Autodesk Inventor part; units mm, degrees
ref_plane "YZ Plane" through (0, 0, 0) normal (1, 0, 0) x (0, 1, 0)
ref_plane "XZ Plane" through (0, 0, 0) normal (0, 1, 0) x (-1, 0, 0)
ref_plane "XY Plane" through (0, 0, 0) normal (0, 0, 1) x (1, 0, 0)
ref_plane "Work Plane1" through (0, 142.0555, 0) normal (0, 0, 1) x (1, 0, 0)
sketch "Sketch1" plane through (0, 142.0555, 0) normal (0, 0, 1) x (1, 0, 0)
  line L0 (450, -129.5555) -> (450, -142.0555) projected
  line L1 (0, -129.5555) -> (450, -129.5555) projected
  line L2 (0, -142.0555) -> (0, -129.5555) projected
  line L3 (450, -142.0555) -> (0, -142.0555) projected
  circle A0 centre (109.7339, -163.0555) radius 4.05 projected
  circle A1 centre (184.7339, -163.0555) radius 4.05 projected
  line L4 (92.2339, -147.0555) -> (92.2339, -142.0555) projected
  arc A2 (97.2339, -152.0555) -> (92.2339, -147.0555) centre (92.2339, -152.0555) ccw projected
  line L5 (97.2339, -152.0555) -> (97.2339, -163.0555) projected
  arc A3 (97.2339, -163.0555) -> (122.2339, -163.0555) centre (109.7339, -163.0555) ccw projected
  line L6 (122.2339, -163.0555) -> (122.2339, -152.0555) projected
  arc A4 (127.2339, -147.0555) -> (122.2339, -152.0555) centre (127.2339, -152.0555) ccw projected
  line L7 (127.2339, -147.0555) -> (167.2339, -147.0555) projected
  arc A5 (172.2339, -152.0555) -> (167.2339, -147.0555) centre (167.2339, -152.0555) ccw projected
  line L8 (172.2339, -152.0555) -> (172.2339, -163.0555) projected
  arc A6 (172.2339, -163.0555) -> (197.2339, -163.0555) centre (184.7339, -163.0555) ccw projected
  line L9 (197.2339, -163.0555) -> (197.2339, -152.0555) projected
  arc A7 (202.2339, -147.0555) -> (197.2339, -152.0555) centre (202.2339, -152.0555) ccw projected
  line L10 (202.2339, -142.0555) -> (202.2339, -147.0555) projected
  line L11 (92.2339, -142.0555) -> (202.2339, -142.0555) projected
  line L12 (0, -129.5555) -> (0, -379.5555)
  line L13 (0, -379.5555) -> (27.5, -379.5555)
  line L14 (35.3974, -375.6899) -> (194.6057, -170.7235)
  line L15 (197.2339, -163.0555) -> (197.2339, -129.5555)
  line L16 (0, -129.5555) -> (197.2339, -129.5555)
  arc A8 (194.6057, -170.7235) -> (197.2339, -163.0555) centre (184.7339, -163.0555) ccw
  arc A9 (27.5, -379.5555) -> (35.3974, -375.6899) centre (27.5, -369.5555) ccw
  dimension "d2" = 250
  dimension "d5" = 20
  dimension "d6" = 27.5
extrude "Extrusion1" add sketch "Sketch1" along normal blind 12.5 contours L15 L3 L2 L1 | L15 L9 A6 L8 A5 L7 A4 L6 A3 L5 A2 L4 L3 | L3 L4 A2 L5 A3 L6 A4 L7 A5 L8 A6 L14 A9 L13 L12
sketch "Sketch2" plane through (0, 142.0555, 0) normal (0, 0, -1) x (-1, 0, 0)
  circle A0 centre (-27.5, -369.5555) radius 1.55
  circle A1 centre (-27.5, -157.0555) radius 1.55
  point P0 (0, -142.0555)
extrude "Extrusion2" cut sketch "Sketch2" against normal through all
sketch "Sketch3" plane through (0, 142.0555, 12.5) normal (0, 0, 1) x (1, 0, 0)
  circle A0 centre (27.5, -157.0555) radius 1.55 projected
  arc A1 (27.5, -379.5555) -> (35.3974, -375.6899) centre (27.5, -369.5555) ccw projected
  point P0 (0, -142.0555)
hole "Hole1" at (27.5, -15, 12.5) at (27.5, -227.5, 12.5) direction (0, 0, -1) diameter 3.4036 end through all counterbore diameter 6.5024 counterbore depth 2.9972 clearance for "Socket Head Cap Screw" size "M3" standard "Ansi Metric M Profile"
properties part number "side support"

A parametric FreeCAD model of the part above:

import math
import FreeCAD as App
import Part
import Sketcher

V = App.Vector

doc = App.newDocument("Part")
body = doc.addObject("PartDesign::Body", "Body")

# Sketch on XY plane
sketch1 = doc.addObject("Sketcher::SketchObject", "Sketch")
body.addObject(sketch1)
sketch1.AttachmentSupport = (doc.XY_Plane, [""])
sketch1.MapMode = "FlatFace"
sketch1.addGeometry(Part.LineSegment(V(197.2, 12.5, 0), V(0, 12.5, 0)), False)
sketch1.addGeometry(Part.LineSegment(V(0, 12.5, 0), V(0, -237.5, 0)), False)
sketch1.addGeometry(Part.LineSegment(V(0, -237.5, 0), V(27.5, -237.5, 0)), False)
sketch1.addGeometry(Part.ArcOfCircle(Part.Circle(V(27.5, -227.5, 0), V(0, 0, 1), 10), math.radians(-90), math.radians(-38)), False)
sketch1.addGeometry(Part.LineSegment(V(35.4, -233.6, 0), V(194.6, -28.7, 0)), False)
sketch1.addGeometry(Part.ArcOfCircle(Part.Circle(V(184.7, -21, 0), V(0, 0, 1), 12.5), math.radians(-38), math.radians(0)), False)
sketch1.addGeometry(Part.LineSegment(V(197.2, -21, 0), V(197.2, 12.5, 0)), False)
sketch1.addGeometry(Part.Circle(V(184.7, -21, 0), V(0, 0, 1), 4), False)
sketch1.addGeometry(Part.Circle(V(109.7, -21, 0), V(0, 0, 1), 4), False)
sketch1.addConstraint(Sketcher.Constraint("Coincident", 0, 2, 1, 1))
sketch1.addConstraint(Sketcher.Constraint("Coincident", 1, 2, 2, 1))
sketch1.addConstraint(Sketcher.Constraint("Tangent", 2, 2, 3, 1))
sketch1.addConstraint(Sketcher.Constraint("Tangent", 3, 2, 4, 1))
sketch1.addConstraint(Sketcher.Constraint("Tangent", 4, 2, 5, 1))
sketch1.addConstraint(Sketcher.Constraint("Tangent", 5, 2, 6, 1))
sketch1.addConstraint(Sketcher.Constraint("Coincident", 6, 2, 0, 1))
sketch1.addConstraint(Sketcher.Constraint("Horizontal", 0))
sketch1.addConstraint(Sketcher.Constraint("Vertical", 1))
sketch1.addConstraint(Sketcher.Constraint("Horizontal", 2))
sketch1.addConstraint(Sketcher.Constraint("Vertical", 6))
sketch1.addConstraint(Sketcher.Constraint("Coincident", 7, 3, 5, 3))
sketch1.addConstraint(Sketcher.Constraint("Equal", 7, 8))
sketch1.addConstraint(Sketcher.Constraint("PointOnObject", 0, 2, -2))
sketch1.addConstraint(Sketcher.Constraint("Horizontal", 7, 3, 8, 3))
sketch1.addConstraint(Sketcher.Constraint("Radius", 3, 10.0))
sketch1.addConstraint(Sketcher.Constraint("DistanceY", 1, 2, 1, 1, 250.0))
sketch1.addConstraint(Sketcher.Constraint("DistanceX", 2, 1, 2, 2, 27.5))
sketch1.addConstraint(Sketcher.Constraint("Diameter", 7, 8.1))
sketch1.addConstraint(Sketcher.Constraint("Radius", 5, 12.5))
sketch1.addConstraint(Sketcher.Constraint("DistanceY", 6, 1, 6, 2, 33.5))
sketch1.addConstraint(Sketcher.Constraint("DistanceY", 5, 3, -1, 1, 21.0))
sketch1.addConstraint(Sketcher.Constraint("DistanceX", 8, 3, 5, 3, 75.0))
sketch1.addConstraint(Sketcher.Constraint("DistanceX", 0, 2, 0, 1, 197.234))
pad1 = doc.addObject("PartDesign::Pad", "Pad")
body.addObject(pad1)
pad1.Profile = sketch1
pad1.Length = 12.5

# Sketch on XY plane
sketch2 = doc.addObject("Sketcher::SketchObject", "Sketch001")
body.addObject(sketch2)
sketch2.AttachmentSupport = (doc.XY_Plane, [""])
sketch2.MapMode = "FlatFace"
sketch2.addGeometry(Part.Circle(V(27.5, -227.5, 0), V(0, 0, 1), 1.6), False)
sketch2.addGeometry(Part.Circle(V(27.5, -15, 0), V(0, 0, 1), 1.6), False)
sketch2.addConstraint(Sketcher.Constraint("Equal", 0, 1))
sketch2.addConstraint(Sketcher.Constraint("Vertical", 0, 3, 1, 3))
sketch2.addConstraint(Sketcher.Constraint("Diameter", 0, 3.1))
sketch2.addConstraint(Sketcher.Constraint("DistanceY", 1, 3, -1, 1, 15.0))
sketch2.addConstraint(Sketcher.Constraint("DistanceX", -1, 1, 0, 3, 27.5))
sketch2.addConstraint(Sketcher.Constraint("DistanceY", 0, 3, -1, 1, 227.5))
pocket1 = doc.addObject("PartDesign::Pocket", "Pocket")
body.addObject(pocket1)
pocket1.Profile = sketch2
pocket1.Type = "ThroughAll"
pocket1.Reversed = True

# Sketch on XY plane
sketch3 = doc.addObject("Sketcher::SketchObject", "Sketch002")
body.addObject(sketch3)
sketch3.AttachmentSupport = (doc.XY_Plane, [""])
sketch3.MapMode = "FlatFace"
sketch3.AttachmentOffset = App.Placement(V(0, 0, 12.5), App.Rotation())
sketch3.addGeometry(Part.Circle(V(27.5, -15, 0), V(0, 0, 1), 1.7), False)
sketch3.addGeometry(Part.Circle(V(27.5, -227.5, 0), V(0, 0, 1), 1.7), False)
sketch3.addConstraint(Sketcher.Constraint("Equal", 0, 1))
sketch3.addConstraint(Sketcher.Constraint("Vertical", 0, 3, 1, 3))
sketch3.addConstraint(Sketcher.Constraint("DistanceY", 0, 3, -1, 1, 15.0))
sketch3.addConstraint(Sketcher.Constraint("Diameter", 0, 3.4036))
sketch3.addConstraint(Sketcher.Constraint("DistanceX", -1, 1, 0, 3, 27.5))
sketch3.addConstraint(Sketcher.Constraint("DistanceY", 1, 3, -1, 1, 227.5))
doc.recompute()
hole = doc.addObject("PartDesign::Hole", "Hole")
body.addObject(hole)
hole.Profile = sketch3
hole.ThreadType = "None"
hole.Diameter = 3.4036
hole.DepthType = "ThroughAll"
hole.HoleCutType = "Counterbore"
hole.HoleCutDiameter = 6.5024
hole.HoleCutDepth = 2.9972

doc.recompute()
